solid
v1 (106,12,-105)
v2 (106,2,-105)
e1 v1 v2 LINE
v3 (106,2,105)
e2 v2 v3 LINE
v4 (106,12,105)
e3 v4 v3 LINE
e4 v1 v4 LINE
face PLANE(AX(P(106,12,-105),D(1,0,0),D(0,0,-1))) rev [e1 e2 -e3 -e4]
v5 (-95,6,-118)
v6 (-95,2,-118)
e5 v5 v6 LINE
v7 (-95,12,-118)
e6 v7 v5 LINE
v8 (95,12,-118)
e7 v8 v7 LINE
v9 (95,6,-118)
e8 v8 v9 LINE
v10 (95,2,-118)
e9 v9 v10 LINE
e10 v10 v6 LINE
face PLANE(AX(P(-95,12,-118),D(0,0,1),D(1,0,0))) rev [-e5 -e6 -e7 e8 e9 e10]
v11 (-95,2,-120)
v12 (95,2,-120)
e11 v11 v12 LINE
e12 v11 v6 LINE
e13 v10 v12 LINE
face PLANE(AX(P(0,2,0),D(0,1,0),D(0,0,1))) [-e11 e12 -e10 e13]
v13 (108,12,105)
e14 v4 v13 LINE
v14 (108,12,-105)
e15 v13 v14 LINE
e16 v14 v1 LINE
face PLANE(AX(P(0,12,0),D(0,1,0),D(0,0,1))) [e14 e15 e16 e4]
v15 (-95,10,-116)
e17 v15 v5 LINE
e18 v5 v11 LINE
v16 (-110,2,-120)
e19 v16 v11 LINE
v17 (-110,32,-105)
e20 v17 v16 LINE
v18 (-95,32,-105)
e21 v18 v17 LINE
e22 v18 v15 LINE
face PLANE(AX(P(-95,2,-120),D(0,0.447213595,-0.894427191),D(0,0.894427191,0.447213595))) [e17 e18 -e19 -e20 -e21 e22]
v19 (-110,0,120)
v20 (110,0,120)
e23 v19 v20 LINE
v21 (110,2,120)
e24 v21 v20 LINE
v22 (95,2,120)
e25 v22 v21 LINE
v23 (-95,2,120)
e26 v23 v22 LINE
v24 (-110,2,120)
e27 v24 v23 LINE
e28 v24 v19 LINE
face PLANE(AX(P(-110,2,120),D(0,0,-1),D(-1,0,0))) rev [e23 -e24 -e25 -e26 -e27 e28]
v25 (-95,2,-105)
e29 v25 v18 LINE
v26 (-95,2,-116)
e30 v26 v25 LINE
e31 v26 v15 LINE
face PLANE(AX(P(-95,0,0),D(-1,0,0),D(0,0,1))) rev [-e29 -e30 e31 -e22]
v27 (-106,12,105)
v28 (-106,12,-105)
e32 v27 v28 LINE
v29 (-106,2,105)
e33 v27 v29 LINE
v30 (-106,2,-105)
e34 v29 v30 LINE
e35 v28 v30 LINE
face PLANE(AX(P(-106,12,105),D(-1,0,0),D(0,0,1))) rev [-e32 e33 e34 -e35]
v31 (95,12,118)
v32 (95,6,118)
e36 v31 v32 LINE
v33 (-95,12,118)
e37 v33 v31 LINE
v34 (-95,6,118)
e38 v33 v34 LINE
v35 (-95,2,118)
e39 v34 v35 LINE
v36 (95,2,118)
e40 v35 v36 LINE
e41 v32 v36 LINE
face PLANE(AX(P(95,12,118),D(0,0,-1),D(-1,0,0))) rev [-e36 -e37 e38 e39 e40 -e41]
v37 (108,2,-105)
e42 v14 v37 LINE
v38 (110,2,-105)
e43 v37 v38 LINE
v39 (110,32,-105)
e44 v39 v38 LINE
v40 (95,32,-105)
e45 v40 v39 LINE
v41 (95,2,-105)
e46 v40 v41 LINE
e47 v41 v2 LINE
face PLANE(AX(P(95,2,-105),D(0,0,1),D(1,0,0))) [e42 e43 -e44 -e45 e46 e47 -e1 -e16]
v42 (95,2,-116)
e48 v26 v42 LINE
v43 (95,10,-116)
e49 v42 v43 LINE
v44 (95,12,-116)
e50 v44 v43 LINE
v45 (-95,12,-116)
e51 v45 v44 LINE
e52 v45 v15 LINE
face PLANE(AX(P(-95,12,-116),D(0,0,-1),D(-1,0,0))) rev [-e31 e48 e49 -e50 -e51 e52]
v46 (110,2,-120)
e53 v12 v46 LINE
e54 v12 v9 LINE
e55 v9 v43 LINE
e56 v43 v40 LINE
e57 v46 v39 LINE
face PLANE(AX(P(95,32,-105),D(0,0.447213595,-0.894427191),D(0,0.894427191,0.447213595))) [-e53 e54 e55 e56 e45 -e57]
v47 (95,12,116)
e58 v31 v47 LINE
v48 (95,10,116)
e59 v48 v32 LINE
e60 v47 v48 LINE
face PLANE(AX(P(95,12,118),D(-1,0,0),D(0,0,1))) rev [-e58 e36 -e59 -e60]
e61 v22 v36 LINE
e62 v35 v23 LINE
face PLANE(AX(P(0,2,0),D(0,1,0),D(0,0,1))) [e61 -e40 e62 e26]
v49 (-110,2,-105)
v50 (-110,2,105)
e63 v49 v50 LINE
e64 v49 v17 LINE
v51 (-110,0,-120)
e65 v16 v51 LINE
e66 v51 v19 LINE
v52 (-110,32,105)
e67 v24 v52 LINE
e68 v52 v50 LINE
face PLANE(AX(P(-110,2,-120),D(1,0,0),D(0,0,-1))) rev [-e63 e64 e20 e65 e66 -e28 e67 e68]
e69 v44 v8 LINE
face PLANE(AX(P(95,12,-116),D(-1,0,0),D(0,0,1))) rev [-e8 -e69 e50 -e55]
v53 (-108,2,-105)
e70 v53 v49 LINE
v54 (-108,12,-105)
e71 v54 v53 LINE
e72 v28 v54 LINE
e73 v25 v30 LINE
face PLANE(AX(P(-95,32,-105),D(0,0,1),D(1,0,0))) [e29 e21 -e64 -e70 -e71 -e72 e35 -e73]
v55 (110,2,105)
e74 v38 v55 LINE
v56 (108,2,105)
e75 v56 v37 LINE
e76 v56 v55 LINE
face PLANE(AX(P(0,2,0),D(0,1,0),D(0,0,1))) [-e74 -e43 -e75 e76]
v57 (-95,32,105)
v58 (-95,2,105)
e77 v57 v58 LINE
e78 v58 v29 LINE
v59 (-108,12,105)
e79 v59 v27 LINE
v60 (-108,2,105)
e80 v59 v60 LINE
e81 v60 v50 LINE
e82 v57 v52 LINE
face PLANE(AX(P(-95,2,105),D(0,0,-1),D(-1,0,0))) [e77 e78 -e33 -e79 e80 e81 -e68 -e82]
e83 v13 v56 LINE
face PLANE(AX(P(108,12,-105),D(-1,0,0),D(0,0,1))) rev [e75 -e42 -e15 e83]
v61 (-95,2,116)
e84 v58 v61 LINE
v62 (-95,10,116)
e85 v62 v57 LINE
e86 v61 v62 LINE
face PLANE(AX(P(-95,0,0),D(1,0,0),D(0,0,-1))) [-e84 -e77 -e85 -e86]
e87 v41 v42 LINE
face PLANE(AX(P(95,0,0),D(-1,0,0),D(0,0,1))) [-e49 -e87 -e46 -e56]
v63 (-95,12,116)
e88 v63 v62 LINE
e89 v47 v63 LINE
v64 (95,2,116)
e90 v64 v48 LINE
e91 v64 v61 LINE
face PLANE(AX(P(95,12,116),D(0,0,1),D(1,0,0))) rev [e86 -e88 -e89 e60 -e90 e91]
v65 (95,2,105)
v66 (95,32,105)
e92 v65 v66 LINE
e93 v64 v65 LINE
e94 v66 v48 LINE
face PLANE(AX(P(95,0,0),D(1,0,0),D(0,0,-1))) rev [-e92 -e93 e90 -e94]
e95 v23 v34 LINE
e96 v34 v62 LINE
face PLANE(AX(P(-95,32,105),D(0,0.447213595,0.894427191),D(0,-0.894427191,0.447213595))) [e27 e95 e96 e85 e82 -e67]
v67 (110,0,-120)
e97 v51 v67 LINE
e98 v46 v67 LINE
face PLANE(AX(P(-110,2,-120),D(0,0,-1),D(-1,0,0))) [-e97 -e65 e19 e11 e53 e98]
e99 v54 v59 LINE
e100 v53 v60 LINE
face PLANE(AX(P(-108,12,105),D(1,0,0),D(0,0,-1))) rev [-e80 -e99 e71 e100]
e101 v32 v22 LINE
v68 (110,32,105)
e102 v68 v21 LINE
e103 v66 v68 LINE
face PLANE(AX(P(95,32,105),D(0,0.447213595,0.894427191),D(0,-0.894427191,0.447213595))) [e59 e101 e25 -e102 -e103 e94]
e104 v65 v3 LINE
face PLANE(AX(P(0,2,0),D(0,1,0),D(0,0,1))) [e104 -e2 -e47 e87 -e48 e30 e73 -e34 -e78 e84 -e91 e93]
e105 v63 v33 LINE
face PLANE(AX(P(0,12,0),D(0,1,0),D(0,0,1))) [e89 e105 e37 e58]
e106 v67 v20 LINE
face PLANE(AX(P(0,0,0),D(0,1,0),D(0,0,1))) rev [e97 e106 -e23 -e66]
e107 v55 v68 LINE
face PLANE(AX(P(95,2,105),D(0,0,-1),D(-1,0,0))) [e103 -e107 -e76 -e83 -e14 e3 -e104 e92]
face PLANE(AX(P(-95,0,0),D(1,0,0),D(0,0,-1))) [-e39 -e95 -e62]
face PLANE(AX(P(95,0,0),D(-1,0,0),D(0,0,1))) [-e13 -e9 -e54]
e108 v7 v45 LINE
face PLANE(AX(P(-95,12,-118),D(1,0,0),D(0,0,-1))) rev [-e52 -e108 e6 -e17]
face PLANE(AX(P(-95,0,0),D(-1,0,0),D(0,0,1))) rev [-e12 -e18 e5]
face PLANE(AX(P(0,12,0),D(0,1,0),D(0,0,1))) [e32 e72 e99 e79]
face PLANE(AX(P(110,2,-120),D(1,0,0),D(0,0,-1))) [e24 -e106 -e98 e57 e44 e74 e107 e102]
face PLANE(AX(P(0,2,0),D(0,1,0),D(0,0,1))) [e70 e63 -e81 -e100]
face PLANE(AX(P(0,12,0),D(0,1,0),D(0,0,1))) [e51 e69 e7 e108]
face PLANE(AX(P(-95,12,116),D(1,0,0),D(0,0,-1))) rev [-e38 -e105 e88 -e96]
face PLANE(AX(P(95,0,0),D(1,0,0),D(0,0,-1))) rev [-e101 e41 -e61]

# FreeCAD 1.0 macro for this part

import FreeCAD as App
import Part
import Sketcher

V = App.Vector
Q = App.Units.Quantity

doc = App.newDocument("Part")
body = doc.addObject("PartDesign::Body", "Body")

# Sketch on XZ plane
sketch1 = doc.addObject("Sketcher::SketchObject", "Sketch")
body.addObject(sketch1)
sketch1.AttachmentSupport = (doc.XZ_Plane, [""])
sketch1.MapMode = "FlatFace"
sketch1.addGeometry(Part.LineSegment(V(-110, -120, 0), V(-110, 120, 0)), False)
sketch1.addGeometry(Part.LineSegment(V(-110, 120, 0), V(110, 120, 0)), False)
sketch1.addGeometry(Part.LineSegment(V(110, 120, 0), V(110, -120, 0)), False)
sketch1.addGeometry(Part.LineSegment(V(110, -120, 0), V(-110, -120, 0)), False)
sketch1.addConstraint(Sketcher.Constraint("Coincident", 0, 2, 1, 1))
sketch1.addConstraint(Sketcher.Constraint("Coincident", 1, 2, 2, 1))
sketch1.addConstraint(Sketcher.Constraint("Coincident", 2, 2, 3, 1))
sketch1.addConstraint(Sketcher.Constraint("Coincident", 3, 2, 0, 1))
sketch1.addConstraint(Sketcher.Constraint("Vertical", 0))
sketch1.addConstraint(Sketcher.Constraint("Horizontal", 1))
sketch1.addConstraint(Sketcher.Constraint("Vertical", 2))
sketch1.addConstraint(Sketcher.Constraint("Horizontal", 3))
sketch1.addConstraint(Sketcher.Constraint("Symmetric", 0, 2, 2, 2, -1, 1))
sketch1.addConstraint(Sketcher.Constraint("DistanceX", 1, 1, 1, 2, Q("220 mm")))
sketch1.addConstraint(Sketcher.Constraint("DistanceY", 0, 1, 0, 2, Q("240 mm")))
pad1 = doc.addObject("PartDesign::Pad", "Pad")
body.addObject(pad1)
pad1.Profile = sketch1
pad1.Length = 2
pad1.Reversed = True

# Sketch on XZ plane
sketch2 = doc.addObject("Sketcher::SketchObject", "Sketch001")
body.addObject(sketch2)
sketch2.AttachmentSupport = (doc.XZ_Plane, [""])
sketch2.MapMode = "FlatFace"
sketch2.AttachmentOffset = App.Placement(V(0, 0, -2), App.Rotation())
sketch2.addGeometry(Part.LineSegment(V(-95, -118, 0), V(-95, -116, 0)), False)
sketch2.addGeometry(Part.LineSegment(V(-95, -116, 0), V(95, -116, 0)), False)
sketch2.addGeometry(Part.LineSegment(V(95, -116, 0), V(95, -118, 0)), False)
sketch2.addGeometry(Part.LineSegment(V(95, -118, 0), V(-95, -118, 0)), False)
sketch2.addGeometry(Part.LineSegment(V(-108, -105, 0), V(-108, 105, 0)), False)
sketch2.addGeometry(Part.LineSegment(V(-108, 105, 0), V(-106, 105, 0)), False)
sketch2.addGeometry(Part.LineSegment(V(-106, 105, 0), V(-106, -105, 0)), False)
sketch2.addGeometry(Part.LineSegment(V(-106, -105, 0), V(-108, -105, 0)), False)
sketch2.addGeometry(Part.LineSegment(V(-95, 116, 0), V(-95, 118, 0)), False)
sketch2.addGeometry(Part.LineSegment(V(-95, 118, 0), V(95, 118, 0)), False)
sketch2.addGeometry(Part.LineSegment(V(95, 118, 0), V(95, 116, 0)), False)
sketch2.addGeometry(Part.LineSegment(V(95, 116, 0), V(-95, 116, 0)), False)
sketch2.addGeometry(Part.LineSegment(V(106, -105, 0), V(106, 105, 0)), False)
sketch2.addGeometry(Part.LineSegment(V(106, 105, 0), V(108, 105, 0)), False)
sketch2.addGeometry(Part.LineSegment(V(108, 105, 0), V(108, -105, 0)), False)
sketch2.addGeometry(Part.LineSegment(V(108, -105, 0), V(106, -105, 0)), False)
sketch2.addConstraint(Sketcher.Constraint("Coincident", 0, 2, 1, 1))
sketch2.addConstraint(Sketcher.Constraint("Coincident", 1, 2, 2, 1))
sketch2.addConstraint(Sketcher.Constraint("Coincident", 2, 2, 3, 1))
sketch2.addConstraint(Sketcher.Constraint("Coincident", 3, 2, 0, 1))
sketch2.addConstraint(Sketcher.Constraint("Coincident", 4, 2, 5, 1))
sketch2.addConstraint(Sketcher.Constraint("Coincident", 5, 2, 6, 1))
sketch2.addConstraint(Sketcher.Constraint("Coincident", 6, 2, 7, 1))
sketch2.addConstraint(Sketcher.Constraint("Coincident", 7, 2, 4, 1))
sketch2.addConstraint(Sketcher.Constraint("Coincident", 8, 2, 9, 1))
sketch2.addConstraint(Sketcher.Constraint("Coincident", 9, 2, 10, 1))
sketch2.addConstraint(Sketcher.Constraint("Coincident", 10, 2, 11, 1))
sketch2.addConstraint(Sketcher.Constraint("Coincident", 11, 2, 8, 1))
sketch2.addConstraint(Sketcher.Constraint("Coincident", 12, 2, 13, 1))
sketch2.addConstraint(Sketcher.Constraint("Coincident", 13, 2, 14, 1))
sketch2.addConstraint(Sketcher.Constraint("Coincident", 14, 2, 15, 1))
sketch2.addConstraint(Sketcher.Constraint("Coincident", 15, 2, 12, 1))
sketch2.addConstraint(Sketcher.Constraint("Vertical", 0))
sketch2.addConstraint(Sketcher.Constraint("Horizontal", 1))
sketch2.addConstraint(Sketcher.Constraint("Vertical", 2))
sketch2.addConstraint(Sketcher.Constraint("Horizontal", 3))
sketch2.addConstraint(Sketcher.Constraint("Vertical", 4))
sketch2.addConstraint(Sketcher.Constraint("Horizontal", 5))
sketch2.addConstraint(Sketcher.Constraint("Vertical", 6))
sketch2.addConstraint(Sketcher.Constraint("Horizontal", 7))
sketch2.addConstraint(Sketcher.Constraint("Vertical", 8))
sketch2.addConstraint(Sketcher.Constraint("Horizontal", 9))
sketch2.addConstraint(Sketcher.Constraint("Vertical", 10))
sketch2.addConstraint(Sketcher.Constraint("Horizontal", 11))
sketch2.addConstraint(Sketcher.Constraint("Vertical", 12))
sketch2.addConstraint(Sketcher.Constraint("Horizontal", 13))
sketch2.addConstraint(Sketcher.Constraint("Vertical", 14))
sketch2.addConstraint(Sketcher.Constraint("Horizontal", 15))
sketch2.addConstraint(Sketcher.Constraint("Symmetric", 2, 2, 8, 2, -1, 1))
sketch2.addConstraint(Sketcher.Constraint("Symmetric", 0, 2, 10, 2, -1, 1))
sketch2.addConstraint(Sketcher.Constraint("Symmetric", 6, 2, 12, 2, -1, 1))
sketch2.addConstraint(Sketcher.Constraint("Symmetric", 4, 2, 14, 2, -1, 1))
sketch2.addConstraint(Sketcher.Constraint("Horizontal", 5, 2, 12, 2))
sketch2.addConstraint(Sketcher.Constraint("Vertical", 3, 2, 8, 2))
sketch2.addConstraint(Sketcher.Constraint("Equal", 15, 0))
sketch2.addConstraint(Sketcher.Constraint("DistanceX", 1, 1, 1, 2, Q("190 mm")))
sketch2.addConstraint(Sketcher.Constraint("DistanceX", 5, 1, 5, 2, Q("2 mm")))
sketch2.addConstraint(Sketcher.Constraint("DistanceY", 4, 1, 4, 2, Q("210 mm")))
sketch2.addConstraint(Sketcher.Constraint("DistanceY", 0, 2, -1, 1, Q("116 mm")))
sketch2.addConstraint(Sketcher.Constraint("DistanceX", 4, 2, -1, 1, Q("108 mm")))
pad2 = doc.addObject("PartDesign::Pad", "Pad001")
body.addObject(pad2)
pad2.Profile = sketch2
pad2.Length = 10
pad2.Reversed = True

# Sketch on YZ plane
sketch3 = doc.addObject("Sketcher::SketchObject", "Sketch002")
body.addObject(sketch3)
sketch3.AttachmentSupport = (doc.YZ_Plane, [""])
sketch3.MapMode = "FlatFace"
sketch3.AttachmentOffset = App.Placement(V(0, 0, 110), App.Rotation())
sketch3.addGeometry(Part.LineSegment(V(2, 120, 0), V(2, 105, 0)), False)
sketch3.addGeometry(Part.LineSegment(V(2, 105, 0), V(32, 105, 0)), False)
sketch3.addGeometry(Part.LineSegment(V(32, 105, 0), V(2, 120, 0)), False)
sketch3.addGeometry(Part.LineSegment(V(2, -105, 0), V(2, -120, 0)), False)
sketch3.addGeometry(Part.LineSegment(V(2, -120, 0), V(32, -105, 0)), False)
sketch3.addGeometry(Part.LineSegment(V(32, -105, 0), V(2, -105, 0)), False)
sketch3.addConstraint(Sketcher.Constraint("Coincident", 0, 2, 1, 1))
sketch3.addConstraint(Sketcher.Constraint("Coincident", 1, 2, 2, 1))
sketch3.addConstraint(Sketcher.Constraint("Coincident", 2, 2, 0, 1))
sketch3.addConstraint(Sketcher.Constraint("Coincident", 3, 2, 4, 1))
sketch3.addConstraint(Sketcher.Constraint("Coincident", 4, 2, 5, 1))
sketch3.addConstraint(Sketcher.Constraint("Coincident", 5, 2, 3, 1))
sketch3.addConstraint(Sketcher.Constraint("Vertical", 0))
sketch3.addConstraint(Sketcher.Constraint("Horizontal", 1))
sketch3.addConstraint(Sketcher.Constraint("Vertical", 3))
sketch3.addConstraint(Sketcher.Constraint("Horizontal", 5))
sketch3.addConstraint(Sketcher.Constraint("Symmetric", 2, 2, 3, 2, -1))
sketch3.addConstraint(Sketcher.Constraint("Symmetric", 1, 2, 4, 2, -1))
sketch3.addConstraint(Sketcher.Constraint("DistanceX", 1, 1, 1, 2, Q("30 mm")))
sketch3.addConstraint(Sketcher.Constraint("DistanceY", 0, 2, 0, 1, Q("15 mm")))
sketch3.addConstraint(Sketcher.Constraint("DistanceX", -1, 1, 0, 2, Q("2 mm")))
sketch3.addConstraint(Sketcher.Constraint("DistanceY", -1, 1, 0, 2, Q("105 mm")))
pad3 = doc.addObject("PartDesign::Pad", "Pad002")
body.addObject(pad3)
pad3.Profile = sketch3
pad3.Length = 15
pad3.Reversed = True

# Sketch on YZ plane
sketch4 = doc.addObject("Sketcher::SketchObject", "Sketch003")
body.addObject(sketch4)
sketch4.AttachmentSupport = (doc.YZ_Plane, [""])
sketch4.MapMode = "FlatFace"
sketch4.AttachmentOffset = App.Placement(V(0, 0, -110), App.Rotation())
sketch4.addGeometry(Part.LineSegment(V(2, 105, 0), V(2, 120, 0)), False)
sketch4.addGeometry(Part.LineSegment(V(2, 120, 0), V(32, 105, 0)), False)
sketch4.addGeometry(Part.LineSegment(V(32, 105, 0), V(2, 105, 0)), False)
sketch4.addGeometry(Part.LineSegment(V(2, -105, 0), V(32, -105, 0)), False)
sketch4.addGeometry(Part.LineSegment(V(32, -105, 0), V(2, -120, 0)), False)
sketch4.addGeometry(Part.LineSegment(V(2, -120, 0), V(2, -105, 0)), False)
sketch4.addConstraint(Sketcher.Constraint("Coincident", 0, 2, 1, 1))
sketch4.addConstraint(Sketcher.Constraint("Coincident", 1, 2, 2, 1))
sketch4.addConstraint(Sketcher.Constraint("Coincident", 2, 2, 0, 1))
sketch4.addConstraint(Sketcher.Constraint("Coincident", 3, 2, 4, 1))
sketch4.addConstraint(Sketcher.Constraint("Coincident", 4, 2, 5, 1))
sketch4.addConstraint(Sketcher.Constraint("Coincident", 5, 2, 3, 1))
sketch4.addConstraint(Sketcher.Constraint("Vertical", 0))
sketch4.addConstraint(Sketcher.Constraint("Horizontal", 2))
sketch4.addConstraint(Sketcher.Constraint("Horizontal", 3))
sketch4.addConstraint(Sketcher.Constraint("Vertical", 5))
sketch4.addConstraint(Sketcher.Constraint("Symmetric", 1, 2, 3, 2, -1))
sketch4.addConstraint(Sketcher.Constraint("Symmetric", 0, 2, 4, 2, -1))
sketch4.addConstraint(Sketcher.Constraint("DistanceX", 2, 2, 2, 1, Q("30 mm")))
sketch4.addConstraint(Sketcher.Constraint("DistanceY", 0, 1, 0, 2, Q("15 mm")))
sketch4.addConstraint(Sketcher.Constraint("DistanceX", -1, 1, 0, 2, Q("2 mm")))
sketch4.addConstraint(Sketcher.Constraint("DistanceY", -1, 1, 0, 2, Q("120 mm")))
pad4 = doc.addObject("PartDesign::Pad", "Pad003")
body.addObject(pad4)
pad4.Profile = sketch4
pad4.Length = 15

doc.recompute()
